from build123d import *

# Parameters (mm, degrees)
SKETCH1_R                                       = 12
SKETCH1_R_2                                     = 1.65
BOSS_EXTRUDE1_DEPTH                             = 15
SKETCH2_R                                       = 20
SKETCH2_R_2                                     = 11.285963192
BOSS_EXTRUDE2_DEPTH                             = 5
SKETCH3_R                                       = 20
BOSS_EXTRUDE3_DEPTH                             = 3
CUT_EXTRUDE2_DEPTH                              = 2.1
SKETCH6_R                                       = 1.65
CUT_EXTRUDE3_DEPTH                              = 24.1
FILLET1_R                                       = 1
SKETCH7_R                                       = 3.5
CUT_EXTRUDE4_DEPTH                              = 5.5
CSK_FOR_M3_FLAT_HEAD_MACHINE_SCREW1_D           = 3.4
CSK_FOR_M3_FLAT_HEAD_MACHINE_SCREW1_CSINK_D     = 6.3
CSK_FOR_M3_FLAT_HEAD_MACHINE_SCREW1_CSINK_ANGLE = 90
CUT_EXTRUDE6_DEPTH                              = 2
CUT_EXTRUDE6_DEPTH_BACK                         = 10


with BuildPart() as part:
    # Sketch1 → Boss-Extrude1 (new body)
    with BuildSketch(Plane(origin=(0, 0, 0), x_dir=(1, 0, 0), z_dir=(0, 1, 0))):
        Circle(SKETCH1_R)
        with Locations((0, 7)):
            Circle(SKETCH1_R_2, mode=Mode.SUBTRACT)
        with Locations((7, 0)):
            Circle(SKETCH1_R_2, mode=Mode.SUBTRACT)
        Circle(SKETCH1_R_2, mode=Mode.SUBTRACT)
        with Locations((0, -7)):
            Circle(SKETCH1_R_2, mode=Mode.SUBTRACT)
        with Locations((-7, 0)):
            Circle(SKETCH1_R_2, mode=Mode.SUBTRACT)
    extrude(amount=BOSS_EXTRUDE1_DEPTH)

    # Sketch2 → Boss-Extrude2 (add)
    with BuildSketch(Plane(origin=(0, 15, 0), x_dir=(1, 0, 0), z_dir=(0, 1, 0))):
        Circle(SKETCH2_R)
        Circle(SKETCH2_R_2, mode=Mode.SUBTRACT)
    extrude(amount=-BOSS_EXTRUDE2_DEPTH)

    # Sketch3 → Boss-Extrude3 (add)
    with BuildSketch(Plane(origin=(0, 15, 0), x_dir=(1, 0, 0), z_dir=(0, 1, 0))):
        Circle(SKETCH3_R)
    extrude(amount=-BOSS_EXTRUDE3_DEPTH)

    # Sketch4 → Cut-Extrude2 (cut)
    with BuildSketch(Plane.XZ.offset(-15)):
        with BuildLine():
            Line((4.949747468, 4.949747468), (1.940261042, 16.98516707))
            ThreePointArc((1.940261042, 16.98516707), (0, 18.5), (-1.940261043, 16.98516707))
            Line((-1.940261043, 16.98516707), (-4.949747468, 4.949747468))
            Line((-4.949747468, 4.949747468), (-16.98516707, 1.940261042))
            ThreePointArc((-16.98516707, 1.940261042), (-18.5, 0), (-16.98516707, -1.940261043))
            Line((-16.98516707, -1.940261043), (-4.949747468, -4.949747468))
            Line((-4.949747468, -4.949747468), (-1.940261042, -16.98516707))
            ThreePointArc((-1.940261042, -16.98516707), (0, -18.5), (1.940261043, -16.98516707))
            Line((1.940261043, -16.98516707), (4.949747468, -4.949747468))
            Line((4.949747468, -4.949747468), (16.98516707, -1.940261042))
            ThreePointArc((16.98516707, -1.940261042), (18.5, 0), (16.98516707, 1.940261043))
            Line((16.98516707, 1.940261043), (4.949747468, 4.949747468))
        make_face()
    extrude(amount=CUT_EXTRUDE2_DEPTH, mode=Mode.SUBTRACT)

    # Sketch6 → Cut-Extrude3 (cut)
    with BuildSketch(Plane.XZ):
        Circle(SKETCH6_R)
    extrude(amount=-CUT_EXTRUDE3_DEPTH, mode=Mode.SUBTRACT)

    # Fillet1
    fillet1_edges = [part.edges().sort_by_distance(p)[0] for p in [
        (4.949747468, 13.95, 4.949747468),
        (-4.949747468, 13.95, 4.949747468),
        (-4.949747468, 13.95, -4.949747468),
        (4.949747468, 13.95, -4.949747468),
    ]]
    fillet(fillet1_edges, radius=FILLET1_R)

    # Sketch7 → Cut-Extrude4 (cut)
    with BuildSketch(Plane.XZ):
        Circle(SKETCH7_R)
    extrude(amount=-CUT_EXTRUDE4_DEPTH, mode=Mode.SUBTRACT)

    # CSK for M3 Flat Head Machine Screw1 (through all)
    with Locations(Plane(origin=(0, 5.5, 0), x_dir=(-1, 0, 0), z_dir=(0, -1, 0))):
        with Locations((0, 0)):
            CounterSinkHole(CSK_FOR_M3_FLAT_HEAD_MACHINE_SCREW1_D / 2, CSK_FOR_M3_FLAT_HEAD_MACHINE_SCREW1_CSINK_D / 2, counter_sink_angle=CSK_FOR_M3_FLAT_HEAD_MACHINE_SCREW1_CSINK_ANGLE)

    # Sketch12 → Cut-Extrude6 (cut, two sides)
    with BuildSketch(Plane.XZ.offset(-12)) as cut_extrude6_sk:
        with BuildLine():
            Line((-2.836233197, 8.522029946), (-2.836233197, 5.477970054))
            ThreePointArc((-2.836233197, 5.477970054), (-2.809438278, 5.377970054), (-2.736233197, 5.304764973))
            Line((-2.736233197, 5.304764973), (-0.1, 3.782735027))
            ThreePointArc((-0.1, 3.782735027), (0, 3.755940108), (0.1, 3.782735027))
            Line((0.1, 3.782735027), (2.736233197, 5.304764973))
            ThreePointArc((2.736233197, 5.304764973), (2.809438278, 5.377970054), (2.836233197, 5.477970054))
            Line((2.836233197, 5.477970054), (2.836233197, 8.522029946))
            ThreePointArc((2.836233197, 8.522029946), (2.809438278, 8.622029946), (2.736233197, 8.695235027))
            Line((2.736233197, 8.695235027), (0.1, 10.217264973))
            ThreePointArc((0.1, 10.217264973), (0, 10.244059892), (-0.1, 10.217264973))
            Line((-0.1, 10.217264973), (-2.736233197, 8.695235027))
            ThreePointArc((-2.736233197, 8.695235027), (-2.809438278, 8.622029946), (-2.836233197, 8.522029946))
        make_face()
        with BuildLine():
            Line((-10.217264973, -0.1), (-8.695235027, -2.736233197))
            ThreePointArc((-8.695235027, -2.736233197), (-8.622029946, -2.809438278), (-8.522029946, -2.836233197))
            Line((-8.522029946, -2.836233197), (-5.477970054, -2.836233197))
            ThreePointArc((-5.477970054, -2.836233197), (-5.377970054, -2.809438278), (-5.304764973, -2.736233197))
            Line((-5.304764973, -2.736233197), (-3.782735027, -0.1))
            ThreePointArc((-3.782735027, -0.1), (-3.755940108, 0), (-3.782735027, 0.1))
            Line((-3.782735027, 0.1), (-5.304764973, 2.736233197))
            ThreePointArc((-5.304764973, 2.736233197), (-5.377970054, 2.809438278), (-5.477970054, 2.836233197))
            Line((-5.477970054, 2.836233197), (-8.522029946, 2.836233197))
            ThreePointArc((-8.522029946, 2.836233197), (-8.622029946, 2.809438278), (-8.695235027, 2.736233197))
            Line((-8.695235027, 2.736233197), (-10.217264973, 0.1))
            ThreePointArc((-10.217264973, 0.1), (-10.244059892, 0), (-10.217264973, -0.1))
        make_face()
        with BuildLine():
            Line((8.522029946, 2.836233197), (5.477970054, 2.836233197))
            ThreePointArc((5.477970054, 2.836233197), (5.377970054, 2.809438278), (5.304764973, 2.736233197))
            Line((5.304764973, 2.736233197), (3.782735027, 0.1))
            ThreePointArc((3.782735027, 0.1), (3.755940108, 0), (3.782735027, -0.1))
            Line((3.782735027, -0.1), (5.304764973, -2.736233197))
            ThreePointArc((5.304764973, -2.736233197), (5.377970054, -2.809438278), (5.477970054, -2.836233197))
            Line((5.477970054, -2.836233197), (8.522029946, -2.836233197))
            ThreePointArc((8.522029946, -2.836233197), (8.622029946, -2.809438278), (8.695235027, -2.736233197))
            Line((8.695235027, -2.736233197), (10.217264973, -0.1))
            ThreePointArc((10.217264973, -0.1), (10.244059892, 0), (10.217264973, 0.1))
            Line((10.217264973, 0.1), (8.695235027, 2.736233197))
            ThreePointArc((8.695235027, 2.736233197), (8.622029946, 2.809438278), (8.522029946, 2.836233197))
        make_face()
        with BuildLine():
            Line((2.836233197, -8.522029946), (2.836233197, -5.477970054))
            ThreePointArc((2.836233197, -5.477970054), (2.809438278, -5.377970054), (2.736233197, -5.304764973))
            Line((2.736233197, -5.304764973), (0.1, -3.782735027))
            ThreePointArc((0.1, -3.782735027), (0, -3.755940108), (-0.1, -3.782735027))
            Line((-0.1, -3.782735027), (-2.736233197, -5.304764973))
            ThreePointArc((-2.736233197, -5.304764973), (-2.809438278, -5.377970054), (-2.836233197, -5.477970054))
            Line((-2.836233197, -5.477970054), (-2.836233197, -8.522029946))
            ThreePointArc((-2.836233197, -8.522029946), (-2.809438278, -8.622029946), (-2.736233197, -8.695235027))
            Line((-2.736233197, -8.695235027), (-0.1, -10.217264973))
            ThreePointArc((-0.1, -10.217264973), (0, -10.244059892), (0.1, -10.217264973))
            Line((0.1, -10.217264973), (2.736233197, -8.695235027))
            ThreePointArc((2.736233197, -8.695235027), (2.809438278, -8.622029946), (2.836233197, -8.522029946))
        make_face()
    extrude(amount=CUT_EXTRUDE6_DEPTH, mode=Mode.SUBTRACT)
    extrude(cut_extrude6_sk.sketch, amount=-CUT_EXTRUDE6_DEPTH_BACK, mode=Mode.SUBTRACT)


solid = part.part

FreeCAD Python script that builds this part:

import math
import FreeCAD as App
import Part
import Sketcher

V = App.Vector
Q = App.Units.Quantity


def edges_at(feature, points):
    """Names of the edges that pass closest to the given points."""
    edges = feature.Shape.Edges
    near = lambda p: min(range(len(edges)), key=lambda i: edges[i].distToShape(Part.Vertex(*p))[0])
    return sorted({f"Edge{near(p) + 1}" for p in points})

doc = App.newDocument("Part")
body = doc.addObject("PartDesign::Body", "Body")

sketch1 = body.newObject("Sketcher::SketchObject", "Sketch")
sketch1.AttachmentSupport = (doc.getObject("XZ_Plane"), [""])
sketch1.MapMode = "FlatFace"
sketch1.addGeometry([
    Part.Circle(V(0, 0, 0), V(0, 0, 1), 12),
    Part.Circle(V(0, 7, 0), V(0, 0, 1), 1.65),
    Part.Circle(V(-7, 0, 0), V(0, 0, 1), 1.65),
    Part.Circle(V(0, 0, 0), V(0, 0, 1), 1.65),
    Part.Circle(V(0, -7, 0), V(0, 0, 1), 1.65),
    Part.Circle(V(7, 0, 0), V(0, 0, 1), 1.65),
], False)
sketch1.addConstraint([
    Sketcher.Constraint("Coincident", 0, 3, -1, 1),
    Sketcher.Constraint("Coincident", 3, 3, -1, 1),
    Sketcher.Constraint("Equal", 1, 2),
    Sketcher.Constraint("Equal", 2, 3),
    Sketcher.Constraint("Equal", 3, 4),
    Sketcher.Constraint("Equal", 4, 5),
    Sketcher.Constraint("Symmetric", 1, 3, 4, 3, -1, 1),
    Sketcher.Constraint("Symmetric", 2, 3, 5, 3, -1, 1),
    Sketcher.Constraint("PointOnObject", 1, 3, -2),
    Sketcher.Constraint("PointOnObject", 2, 3, -1),
    Sketcher.Constraint("Diameter", 0, Q("24 mm")),
    Sketcher.Constraint("Diameter", 1, Q("3.3 mm")),
    Sketcher.Constraint("DistanceY", -1, 1, 1, 3, Q("7 mm")),
    Sketcher.Constraint("DistanceX", 2, 3, -1, 1, Q("7 mm")),
])
pad1 = body.newObject("PartDesign::Pad", "Pad")
pad1.Profile = sketch1
pad1.Length = 15
pad1.Reversed = True

sketch2 = body.newObject("Sketcher::SketchObject", "Sketch001")
sketch2.AttachmentSupport = (doc.getObject("XZ_Plane"), [""])
sketch2.MapMode = "FlatFace"
sketch2.AttachmentOffset = App.Placement(V(0, 0, -15), App.Rotation())
sketch2.addGeometry([
    Part.Circle(V(0, 0, 0), V(0, 0, 1), 20),
    Part.Circle(V(0, 0, 0), V(0, 0, 1), 11.285963),
], False)
sketch2.addConstraint([
    Sketcher.Constraint("Coincident", 0, 3, -1, 1),
    Sketcher.Constraint("Coincident", 1, 3, -1, 1),
    Sketcher.Constraint("Diameter", 0, Q("40 mm")),
    Sketcher.Constraint("Diameter", 1, Q("22.571926 mm")),
])
pad2 = body.newObject("PartDesign::Pad", "Pad001")
pad2.Profile = sketch2
pad2.Length = 5

sketch3 = body.newObject("Sketcher::SketchObject", "Sketch002")
sketch3.AttachmentSupport = (doc.getObject("XZ_Plane"), [""])
sketch3.MapMode = "FlatFace"
sketch3.AttachmentOffset = App.Placement(V(0, 0, -15), App.Rotation())
sketch3.addGeometry(Part.Circle(V(0, 0, 0), V(0, 0, 1), 20), False)
sketch3.addConstraint([
    Sketcher.Constraint("Coincident", 0, 3, -1, 1),
    Sketcher.Constraint("Diameter", 0, Q("40 mm")),
])
pad3 = body.newObject("PartDesign::Pad", "Pad002")
pad3.Profile = sketch3
pad3.Length = 3

sketch4 = body.newObject("Sketcher::SketchObject", "Sketch003")
sketch4.AttachmentSupport = (doc.getObject("XZ_Plane"), [""])
sketch4.MapMode = "FlatFace"
sketch4.AttachmentOffset = App.Placement(V(0, 0, -15), App.Rotation())
sketch4.addGeometry([
    Part.LineSegment(V(4.949747, 4.949747, 0), V(1.940261, 16.985167, 0)),
    Part.ArcOfCircle(Part.Circle(V(0, 16.5, 0), V(0, 0, 1), 2), math.radians(14.039073), math.radians(165.960927)),
    Part.LineSegment(V(-1.940261, 16.985167, 0), V(-4.949747, 4.949747, 0)),
    Part.LineSegment(V(-4.949747, 4.949747, 0), V(-16.985167, 1.940261, 0)),
    Part.ArcOfCircle(Part.Circle(V(-16.5, 0, 0), V(0, 0, 1), 2), math.radians(104.039073), math.radians(255.960927)),
    Part.LineSegment(V(-16.985167, -1.940261, 0), V(-4.949747, -4.949747, 0)),
    Part.LineSegment(V(-4.949747, -4.949747, 0), V(-1.940261, -16.985167, 0)),
    Part.ArcOfCircle(Part.Circle(V(0, -16.5, 0), V(0, 0, 1), 2), math.radians(-165.960927), math.radians(-14.039073)),
    Part.LineSegment(V(1.940261, -16.985167, 0), V(4.949747, -4.949747, 0)),
    Part.LineSegment(V(4.949747, -4.949747, 0), V(16.985167, -1.940261, 0)),
    Part.ArcOfCircle(Part.Circle(V(16.5, 0, 0), V(0, 0, 1), 2), math.radians(-75.960927), math.radians(75.960927)),
    Part.LineSegment(V(16.985167, 1.940261, 0), V(4.949747, 4.949747, 0)),
], False)
sketch4.addConstraint([
    Sketcher.Constraint("Tangent", 0, 2, 1, 1),
    Sketcher.Constraint("Tangent", 1, 2, 2, 1),
    Sketcher.Constraint("Coincident", 2, 2, 3, 1),
    Sketcher.Constraint("Tangent", 3, 2, 4, 1),
    Sketcher.Constraint("Tangent", 4, 2, 5, 1),
    Sketcher.Constraint("Coincident", 5, 2, 6, 1),
    Sketcher.Constraint("Tangent", 6, 2, 7, 1),
    Sketcher.Constraint("Tangent", 7, 2, 8, 1),
    Sketcher.Constraint("Coincident", 8, 2, 9, 1),
    Sketcher.Constraint("Tangent", 9, 2, 10, 1),
    Sketcher.Constraint("Tangent", 10, 2, 11, 1),
    Sketcher.Constraint("Coincident", 11, 2, 0, 1),
    Sketcher.Constraint("Equal", 1, 4),
    Sketcher.Constraint("Equal", 4, 7),
    Sketcher.Constraint("Equal", 7, 10),
    Sketcher.Constraint("Symmetric", 1, 3, 7, 3, -1, 1),
    Sketcher.Constraint("Symmetric", 4, 3, 10, 3, -1, 1),
    Sketcher.Constraint("Symmetric", 2, 2, 8, 2, -1, 1),
    Sketcher.Constraint("Symmetric", 5, 2, 11, 2, -1, 1),
    Sketcher.Constraint("Symmetric", 0, 2, 1, 2, -2),
    Sketcher.Constraint("Symmetric", 4, 2, 9, 2, -2),
    Sketcher.Constraint("Perpendicular", 0, 3),
    Sketcher.Constraint("Equal", 2, 3),
    Sketcher.Constraint("Radius", 1, Q("2 mm")),
    Sketcher.Constraint("DistanceY", 7, 3, 1, 3, Q("33 mm")),
    Sketcher.Constraint("Distance", 0, Q("12.40598 mm")),
])
pocket1 = body.newObject("PartDesign::Pocket", "Pocket")
pocket1.Profile = sketch4
pocket1.Length = 2.1
pocket1.Reversed = True

sketch5 = body.newObject("Sketcher::SketchObject", "Sketch004")
sketch5.AttachmentSupport = (doc.getObject("XZ_Plane"), [""])
sketch5.MapMode = "FlatFace"
sketch5.addGeometry(Part.Circle(V(0, 0, 0), V(0, 0, 1), 1.65), False)
sketch5.addConstraint([
    Sketcher.Constraint("Coincident", 0, 3, -1, 1),
    Sketcher.Constraint("Diameter", 0, Q("3.3 mm")),
])
pocket2 = body.newObject("PartDesign::Pocket", "Pocket001")
pocket2.Profile = sketch5
pocket2.Length = 24.1
doc.recompute()

fillet = body.newObject("PartDesign::Fillet", "Fillet")
fillet.Base = (pocket2, edges_at(pocket2, [
    (4.95, 13.95, 4.95),
    (-4.95, 13.95, 4.95),
    (-4.95, 13.95, -4.95),
    (4.95, 13.95, -4.95),
]))
fillet.Radius = 1

sketch6 = body.newObject("Sketcher::SketchObject", "Sketch005")
sketch6.AttachmentSupport = (doc.getObject("XZ_Plane"), [""])
sketch6.MapMode = "FlatFace"
sketch6.addGeometry(Part.Circle(V(0, 0, 0), V(0, 0, 1), 3.5), False)
sketch6.addConstraint([
    Sketcher.Constraint("Coincident", 0, 3, -1, 1),
    Sketcher.Constraint("Diameter", 0, Q("7 mm")),
])
pocket3 = body.newObject("PartDesign::Pocket", "Pocket002")
pocket3.Profile = sketch6
pocket3.Length = 5.5

sketch7 = body.newObject("Sketcher::SketchObject", "Sketch006")
sketch7.AttachmentSupport = (doc.getObject("XZ_Plane"), [""])
sketch7.MapMode = "FlatFace"
sketch7.AttachmentOffset = App.Placement(V(0, 0, -5.5), App.Rotation())
sketch7.addGeometry(Part.Circle(V(0, 0, 0), V(0, 0, 1), 1.7), False)
sketch7.addConstraint([
    Sketcher.Constraint("Coincident", 0, 3, -1, 1),
    Sketcher.Constraint("Diameter", 0, Q("3.4 mm")),
])
doc.recompute()
hole = body.newObject("PartDesign::Hole", "Hole")
hole.Profile = sketch7
hole.ThreadType = "None"
hole.Diameter = 3.4
hole.DepthType = "ThroughAll"
hole.HoleCutType = "Countersink"
hole.HoleCutDiameter = 6.3
hole.HoleCutCountersinkAngle = 90

sketch8 = body.newObject("Sketcher::SketchObject", "Sketch007")
sketch8.AttachmentSupport = (doc.getObject("XZ_Plane"), [""])
sketch8.MapMode = "FlatFace"
sketch8.AttachmentOffset = App.Placement(V(0, 0, -12), App.Rotation())
sketch8.addGeometry([
    Part.LineSegment(V(-2.836233, 8.52203, 0), V(-2.836233, 5.47797, 0)),
    Part.ArcOfCircle(Part.Circle(V(-2.636233, 5.47797, 0), V(0, 0, 1), 0.2), math.radians(180), math.radians(240)),
    Part.LineSegment(V(-2.736233, 5.304765, 0), V(-0.1, 3.782735, 0)),
    Part.ArcOfCircle(Part.Circle(V(0, 3.95594, 0), V(0, 0, 1), 0.2), math.radians(-120), math.radians(-60)),
    Part.LineSegment(V(0.1, 3.782735, 0), V(2.736233, 5.304765, 0)),
    Part.ArcOfCircle(Part.Circle(V(2.636233, 5.47797, 0), V(0, 0, 1), 0.2), math.radians(-60), math.radians(0)),
    Part.LineSegment(V(2.836233, 5.47797, 0), V(2.836233, 8.52203, 0)),
    Part.ArcOfCircle(Part.Circle(V(2.636233, 8.52203, 0), V(0, 0, 1), 0.2), math.radians(0), math.radians(60)),
    Part.LineSegment(V(2.736233, 8.695235, 0), V(0.1, 10.217265, 0)),
    Part.ArcOfCircle(Part.Circle(V(0, 10.04406, 0), V(0, 0, 1), 0.2), math.radians(60), math.radians(120)),
    Part.LineSegment(V(-0.1, 10.217265, 0), V(-2.736233, 8.695235, 0)),
    Part.ArcOfCircle(Part.Circle(V(-2.636233, 8.52203, 0), V(0, 0, 1), 0.2), math.radians(120), math.radians(180)),
    Part.LineSegment(V(-10.217265, -0.1, 0), V(-8.695235, -2.736233, 0)),
    Part.ArcOfCircle(Part.Circle(V(-8.52203, -2.636233, 0), V(0, 0, 1), 0.2), math.radians(-150), math.radians(-90)),
    Part.LineSegment(V(-8.52203, -2.836233, 0), V(-5.47797, -2.836233, 0)),
    Part.ArcOfCircle(Part.Circle(V(-5.47797, -2.636233, 0), V(0, 0, 1), 0.2), math.radians(-90), math.radians(-30)),
    Part.LineSegment(V(-5.304765, -2.736233, 0), V(-3.782735, -0.1, 0)),
    Part.ArcOfCircle(Part.Circle(V(-3.95594, 0, 0), V(0, 0, 1), 0.2), math.radians(-30), math.radians(30)),
    Part.LineSegment(V(-3.782735, 0.1, 0), V(-5.304765, 2.736233, 0)),
    Part.ArcOfCircle(Part.Circle(V(-5.47797, 2.636233, 0), V(0, 0, 1), 0.2), math.radians(30), math.radians(90)),
    Part.LineSegment(V(-5.47797, 2.836233, 0), V(-8.52203, 2.836233, 0)),
    Part.ArcOfCircle(Part.Circle(V(-8.52203, 2.636233, 0), V(0, 0, 1), 0.2), math.radians(90), math.radians(150)),
    Part.LineSegment(V(-8.695235, 2.736233, 0), V(-10.217265, 0.1, 0)),
    Part.ArcOfCircle(Part.Circle(V(-10.04406, 0, 0), V(0, 0, 1), 0.2), math.radians(150), math.radians(210)),
    Part.LineSegment(V(8.52203, 2.836233, 0), V(5.47797, 2.836233, 0)),
    Part.ArcOfCircle(Part.Circle(V(5.47797, 2.636233, 0), V(0, 0, 1), 0.2), math.radians(90), math.radians(150)),
    Part.LineSegment(V(5.304765, 2.736233, 0), V(3.782735, 0.1, 0)),
    Part.ArcOfCircle(Part.Circle(V(3.95594, 0, 0), V(0, 0, 1), 0.2), math.radians(150), math.radians(210)),
    Part.LineSegment(V(3.782735, -0.1, 0), V(5.304765, -2.736233, 0)),
    Part.ArcOfCircle(Part.Circle(V(5.47797, -2.636233, 0), V(0, 0, 1), 0.2), math.radians(-150), math.radians(-90)),
    Part.LineSegment(V(5.47797, -2.836233, 0), V(8.52203, -2.836233, 0)),
    Part.ArcOfCircle(Part.Circle(V(8.52203, -2.636233, 0), V(0, 0, 1), 0.2), math.radians(-90), math.radians(-30)),
    Part.LineSegment(V(8.695235, -2.736233, 0), V(10.217265, -0.1, 0)),
    Part.ArcOfCircle(Part.Circle(V(10.04406, 0, 0), V(0, 0, 1), 0.2), math.radians(-30), math.radians(30)),
    Part.LineSegment(V(10.217265, 0.1, 0), V(8.695235, 2.736233, 0)),
    Part.ArcOfCircle(Part.Circle(V(8.52203, 2.636233, 0), V(0, 0, 1), 0.2), math.radians(30), math.radians(90)),
    Part.LineSegment(V(2.836233, -8.52203, 0), V(2.836233, -5.47797, 0)),
    Part.ArcOfCircle(Part.Circle(V(2.636233, -5.47797, 0), V(0, 0, 1), 0.2), math.radians(0), math.radians(60)),
    Part.LineSegment(V(2.736233, -5.304765, 0), V(0.1, -3.782735, 0)),
    Part.ArcOfCircle(Part.Circle(V(0, -3.95594, 0), V(0, 0, 1), 0.2), math.radians(60), math.radians(120)),
    Part.LineSegment(V(-0.1, -3.782735, 0), V(-2.736233, -5.304765, 0)),
    Part.ArcOfCircle(Part.Circle(V(-2.636233, -5.47797, 0), V(0, 0, 1), 0.2), math.radians(120), math.radians(180)),
    Part.LineSegment(V(-2.836233, -5.47797, 0), V(-2.836233, -8.52203, 0)),
    Part.ArcOfCircle(Part.Circle(V(-2.636233, -8.52203, 0), V(0, 0, 1), 0.2), math.radians(180), math.radians(240)),
    Part.LineSegment(V(-2.736233, -8.695235, 0), V(-0.1, -10.217265, 0)),
    Part.ArcOfCircle(Part.Circle(V(0, -10.04406, 0), V(0, 0, 1), 0.2), math.radians(-120), math.radians(-60)),
    Part.LineSegment(V(0.1, -10.217265, 0), V(2.736233, -8.695235, 0)),
    Part.ArcOfCircle(Part.Circle(V(2.636233, -8.52203, 0), V(0, 0, 1), 0.2), math.radians(-60), math.radians(0)),
], False)
sketch8.addConstraint([
    Sketcher.Constraint("Tangent", 0, 2, 1, 1),
    Sketcher.Constraint("Tangent", 1, 2, 2, 1),
    Sketcher.Constraint("Tangent", 2, 2, 3, 1),
    Sketcher.Constraint("Tangent", 3, 2, 4, 1),
    Sketcher.Constraint("Tangent", 4, 2, 5, 1),
    Sketcher.Constraint("Tangent", 5, 2, 6, 1),
    Sketcher.Constraint("Tangent", 6, 2, 7, 1),
    Sketcher.Constraint("Tangent", 7, 2, 8, 1),
    Sketcher.Constraint("Tangent", 8, 2, 9, 1),
    Sketcher.Constraint("Tangent", 9, 2, 10, 1),
    Sketcher.Constraint("Tangent", 10, 2, 11, 1),
    Sketcher.Constraint("Tangent", 11, 2, 0, 1),
    Sketcher.Constraint("Tangent", 12, 2, 13, 1),
    Sketcher.Constraint("Tangent", 13, 2, 14, 1),
    Sketcher.Constraint("Tangent", 14, 2, 15, 1),
    Sketcher.Constraint("Tangent", 15, 2, 16, 1),
    Sketcher.Constraint("Tangent", 16, 2, 17, 1),
    Sketcher.Constraint("Tangent", 17, 2, 18, 1),
    Sketcher.Constraint("Tangent", 18, 2, 19, 1),
    Sketcher.Constraint("Tangent", 19, 2, 20, 1),
    Sketcher.Constraint("Tangent", 20, 2, 21, 1),
    Sketcher.Constraint("Tangent", 21, 2, 22, 1),
    Sketcher.Constraint("Tangent", 22, 2, 23, 1),
    Sketcher.Constraint("Tangent", 23, 2, 12, 1),
    Sketcher.Constraint("Tangent", 24, 2, 25, 1),
    Sketcher.Constraint("Tangent", 25, 2, 26, 1),
    Sketcher.Constraint("Tangent", 26, 2, 27, 1),
    Sketcher.Constraint("Tangent", 27, 2, 28, 1),
    Sketcher.Constraint("Tangent", 28, 2, 29, 1),
    Sketcher.Constraint("Tangent", 29, 2, 30, 1),
    Sketcher.Constraint("Tangent", 30, 2, 31, 1),
    Sketcher.Constraint("Tangent", 31, 2, 32, 1),
    Sketcher.Constraint("Tangent", 32, 2, 33, 1),
    Sketcher.Constraint("Tangent", 33, 2, 34, 1),
    Sketcher.Constraint("Tangent", 34, 2, 35, 1),
    Sketcher.Constraint("Tangent", 35, 2, 24, 1),
    Sketcher.Constraint("Tangent", 36, 2, 37, 1),
    Sketcher.Constraint("Tangent", 37, 2, 38, 1),
    Sketcher.Constraint("Tangent", 38, 2, 39, 1),
    Sketcher.Constraint("Tangent", 39, 2, 40, 1),
    Sketcher.Constraint("Tangent", 40, 2, 41, 1),
    Sketcher.Constraint("Tangent", 41, 2, 42, 1),
    Sketcher.Constraint("Tangent", 42, 2, 43, 1),
    Sketcher.Constraint("Tangent", 43, 2, 44, 1),
    Sketcher.Constraint("Tangent", 44, 2, 45, 1),
    Sketcher.Constraint("Tangent", 45, 2, 46, 1),
    Sketcher.Constraint("Tangent", 46, 2, 47, 1),
    Sketcher.Constraint("Tangent", 47, 2, 36, 1),
    Sketcher.Constraint("Vertical", 0),
    Sketcher.Constraint("Vertical", 6),
    Sketcher.Constraint("Horizontal", 14),
    Sketcher.Constraint("Horizontal", 20),
    Sketcher.Constraint("Horizontal", 24),
    Sketcher.Constraint("Horizontal", 30),
    Sketcher.Constraint("Vertical", 36),
    Sketcher.Constraint("Vertical", 42),
    Sketcher.Constraint("Equal", 1, 3),
    Sketcher.Constraint("Equal", 3, 5),
    Sketcher.Constraint("Equal", 5, 7),
    Sketcher.Constraint("Equal", 7, 9),
    Sketcher.Constraint("Equal", 9, 11),
    Sketcher.Constraint("Equal", 11, 13),
    Sketcher.Constraint("Equal", 13, 15),
    Sketcher.Constraint("Equal", 15, 17),
    Sketcher.Constraint("Equal", 17, 19),
    Sketcher.Constraint("Equal", 19, 21),
    Sketcher.Constraint("Equal", 21, 23),
    Sketcher.Constraint("Equal", 23, 25),
    Sketcher.Constraint("Equal", 25, 27),
    Sketcher.Constraint("Equal", 27, 29),
    Sketcher.Constraint("Equal", 29, 31),
    Sketcher.Constraint("Equal", 31, 33),
    Sketcher.Constraint("Equal", 33, 35),
    Sketcher.Constraint("Equal", 35, 37),
    Sketcher.Constraint("Equal", 37, 39),
    Sketcher.Constraint("Equal", 39, 41),
    Sketcher.Constraint("Equal", 41, 43),
    Sketcher.Constraint("Equal", 43, 45),
    Sketcher.Constraint("Equal", 45, 47),
    Sketcher.Constraint("Symmetric", 15, 3, 25, 3, -1, 1),
    Sketcher.Constraint("Symmetric", 17, 3, 27, 3, -1, 1),
    Sketcher.Constraint("Symmetric", 19, 3, 29, 3, -1, 1),
    Sketcher.Constraint("Symmetric", 23, 3, 33, 3, -1, 1),
    Sketcher.Constraint("Symmetric", 1, 3, 37, 3, -1, 1),
    Sketcher.Constraint("Symmetric", 3, 3, 39, 3, -1, 1),
    Sketcher.Constraint("Symmetric", 5, 3, 41, 3, -1, 1),
    Sketcher.Constraint("Symmetric", 9, 3, 45, 3, -1, 1),
    Sketcher.Constraint("Symmetric", 1, 3, 5, 3, -2),
    Sketcher.Constraint("Symmetric", 19, 3, 25, 3, -2),
    Sketcher.Constraint("Symmetric", 8, 2, 9, 2, -2),
    Sketcher.Constraint("Symmetric", 12, 2, 31, 2, -2),
    Sketcher.Constraint("PointOnObject", 3, 3, -2),
    Sketcher.Constraint("PointOnObject", 17, 3, -1),
    Sketcher.Constraint("Parallel", 2, 8),
    Sketcher.Constraint("Perpendicular", 10, 12),
    Sketcher.Constraint("Perpendicular", 8, 16),
    Sketcher.Constraint("Parallel", 16, 22),
    Sketcher.Constraint("Parallel", 28, 34),
    Sketcher.Constraint("Parallel", 38, 44),
    Sketcher.Constraint("Parallel", 40, 46),
    Sketcher.Constraint("Equal", 30, 0),
    Sketcher.Constraint("Equal", 10, 12),
    Sketcher.Constraint("Radius", 1, Q("0.2 mm")),
    Sketcher.Constraint("Angle", 2, Q("-30 deg")),
    Sketcher.Constraint("DistanceX", 14, 1, 14, 2, Q("3.04406 mm")),
    Sketcher.Constraint("Distance", 2, Q("3.04406 mm")),
    Sketcher.Constraint("DistanceY", -1, 1, 1, 3, Q("5.47797 mm")),
    Sketcher.Constraint("DistanceX", 13, 3, -1, 1, Q("8.52203 mm")),
])
pocket4 = body.newObject("PartDesign::Pocket", "Pocket003")
pocket4.Profile = sketch8
pocket4.Type = "TwoLengths"
pocket4.Length = 2
pocket4.Length2 = 10
pocket4.Reversed = True

doc.recompute()
